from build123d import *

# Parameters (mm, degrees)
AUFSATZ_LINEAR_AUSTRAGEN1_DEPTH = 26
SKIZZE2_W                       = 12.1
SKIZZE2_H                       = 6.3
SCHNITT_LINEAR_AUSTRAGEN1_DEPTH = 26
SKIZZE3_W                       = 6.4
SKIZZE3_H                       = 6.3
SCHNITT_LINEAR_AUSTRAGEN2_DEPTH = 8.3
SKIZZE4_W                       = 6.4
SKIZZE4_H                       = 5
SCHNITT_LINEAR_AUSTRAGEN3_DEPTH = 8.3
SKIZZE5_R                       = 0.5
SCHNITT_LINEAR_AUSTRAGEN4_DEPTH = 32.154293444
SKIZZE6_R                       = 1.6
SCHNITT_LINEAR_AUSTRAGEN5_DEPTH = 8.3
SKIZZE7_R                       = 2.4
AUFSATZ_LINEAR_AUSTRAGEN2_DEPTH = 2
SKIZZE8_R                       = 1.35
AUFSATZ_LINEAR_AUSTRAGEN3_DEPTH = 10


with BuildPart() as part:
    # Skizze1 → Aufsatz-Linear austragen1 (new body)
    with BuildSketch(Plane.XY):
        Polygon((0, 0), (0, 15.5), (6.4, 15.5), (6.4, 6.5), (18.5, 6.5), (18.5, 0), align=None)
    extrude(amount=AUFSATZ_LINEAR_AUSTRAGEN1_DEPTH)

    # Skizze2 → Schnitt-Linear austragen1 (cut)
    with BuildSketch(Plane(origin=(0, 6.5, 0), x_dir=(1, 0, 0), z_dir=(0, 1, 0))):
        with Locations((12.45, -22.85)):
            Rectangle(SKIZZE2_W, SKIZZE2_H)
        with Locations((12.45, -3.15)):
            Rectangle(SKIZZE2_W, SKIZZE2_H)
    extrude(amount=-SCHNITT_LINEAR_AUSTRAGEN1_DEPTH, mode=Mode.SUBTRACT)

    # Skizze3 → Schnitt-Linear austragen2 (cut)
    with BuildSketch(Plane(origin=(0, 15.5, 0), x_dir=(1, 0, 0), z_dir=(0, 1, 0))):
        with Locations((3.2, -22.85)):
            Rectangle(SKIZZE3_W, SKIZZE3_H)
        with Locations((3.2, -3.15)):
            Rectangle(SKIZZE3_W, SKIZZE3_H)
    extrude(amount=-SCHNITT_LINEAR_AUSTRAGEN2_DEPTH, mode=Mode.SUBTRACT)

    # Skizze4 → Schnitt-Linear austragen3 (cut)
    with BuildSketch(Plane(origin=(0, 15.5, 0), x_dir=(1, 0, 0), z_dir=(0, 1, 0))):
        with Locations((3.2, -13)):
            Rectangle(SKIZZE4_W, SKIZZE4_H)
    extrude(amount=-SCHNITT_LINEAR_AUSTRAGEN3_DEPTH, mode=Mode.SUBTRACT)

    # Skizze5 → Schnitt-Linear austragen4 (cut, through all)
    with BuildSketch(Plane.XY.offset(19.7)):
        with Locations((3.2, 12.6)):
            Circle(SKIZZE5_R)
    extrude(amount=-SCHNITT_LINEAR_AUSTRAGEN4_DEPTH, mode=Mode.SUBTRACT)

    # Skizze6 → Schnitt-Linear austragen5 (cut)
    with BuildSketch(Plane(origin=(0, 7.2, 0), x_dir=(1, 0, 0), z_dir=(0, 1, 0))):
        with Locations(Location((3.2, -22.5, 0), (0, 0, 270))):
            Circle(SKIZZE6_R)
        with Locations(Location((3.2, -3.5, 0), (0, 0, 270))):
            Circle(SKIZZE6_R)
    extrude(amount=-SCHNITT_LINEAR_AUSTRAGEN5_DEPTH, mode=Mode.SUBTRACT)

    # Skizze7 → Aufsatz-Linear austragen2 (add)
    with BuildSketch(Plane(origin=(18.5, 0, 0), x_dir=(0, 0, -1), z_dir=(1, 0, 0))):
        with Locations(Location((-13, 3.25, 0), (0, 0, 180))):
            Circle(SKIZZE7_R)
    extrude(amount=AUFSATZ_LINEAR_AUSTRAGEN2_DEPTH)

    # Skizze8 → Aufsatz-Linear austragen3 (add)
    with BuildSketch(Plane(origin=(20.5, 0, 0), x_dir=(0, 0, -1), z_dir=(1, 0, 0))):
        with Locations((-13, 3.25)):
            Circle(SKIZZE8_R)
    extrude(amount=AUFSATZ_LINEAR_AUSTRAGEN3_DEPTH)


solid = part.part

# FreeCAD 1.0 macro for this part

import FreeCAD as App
import Part
import Sketcher
Q = App.Units.Quantity


def add_polygon(sketch, points):
    """Adds a closed chain of lines whose ends are joined by coincident constraints."""
    first, n = sketch.GeometryCount, len(points)
    for a, b in zip(points, points[1:] + points[:1]):
        sketch.addGeometry(Part.LineSegment(App.Vector(*a, 0), App.Vector(*b, 0)), False)
    for i in range(n):
        sketch.addConstraint(Sketcher.Constraint("Coincident", first + i, 2, first + (i + 1) % n, 1))

doc = App.newDocument("Part")
params = doc.addObject("Spreadsheet::Sheet", "Params")
for row, (alias, value) in enumerate([
    ("sketch1_height", "9 mm"),
    ("sketch1_width", "18.5 mm"),
    ("sketch1_width2", "12.1 mm"),
    ("sketch1_height2", "15.5 mm"),
    ("pad1_length", "26 mm"),
    ("sketch2_width", "12.1 mm"),
    ("sketch2_height", "6.3 mm"),
    ("pocket1_length", "26 mm"),
    ("sketch3_width", "6.4 mm"),
    ("sketch3_height", "6.3 mm"),
    ("pocket2_length", "8.3 mm"),
    ("sketch4_height", "5 mm"),
    ("sketch4_width", "6.4 mm"),
    ("pocket3_length", "8.3 mm"),
    ("sketch5_diameter", "1 mm"),
    ("sketch6_diameter", "3.2 mm"),
    ("pocket5_length", "8.3 mm"),
    ("sketch7_diameter", "4.8 mm"),
    ("pad2_length", "2 mm"),
    ("sketch8_diameter", "2.7 mm"),
    ("pad3_length", "10 mm"),
], start=1):
    params.set(f"A{row}", alias)
    params.set(f"B{row}", "=" + value)
    params.setAlias(f"B{row}", alias)

body = doc.addObject("PartDesign::Body", "Body")

sketch1 = body.newObject("Sketcher::SketchObject", "Sketch")
sketch1.AttachmentSupport = (doc.getObject("XY_Plane"), [""])
sketch1.MapMode = "FlatFace"
add_polygon(sketch1, [(0, 16), (0, 0), (18, 0), (18, 6), (6, 6), (6, 16)])
sketch1.addConstraint(Sketcher.Constraint("Vertical", 0))
sketch1.addConstraint(Sketcher.Constraint("Horizontal", 1))
sketch1.addConstraint(Sketcher.Constraint("Vertical", 2))
sketch1.addConstraint(Sketcher.Constraint("Horizontal", 3))
sketch1.addConstraint(Sketcher.Constraint("Vertical", 4))
sketch1.addConstraint(Sketcher.Constraint("Horizontal", 5))
sketch1.addConstraint(Sketcher.Constraint("Coincident", 0, 2, -1, 1))
sketch1.addConstraint(Sketcher.Constraint("DistanceY", 4, 1, 4, 2, Q("9 mm")))
sketch1.addConstraint(Sketcher.Constraint("DistanceX", 1, 1, 1, 2, Q("18.5 mm")))
sketch1.addConstraint(Sketcher.Constraint("DistanceX", 3, 2, 3, 1, Q("12.1 mm")))
sketch1.addConstraint(Sketcher.Constraint("DistanceY", 0, 2, 0, 1, Q("15.5 mm")))
sketch1.setExpression("Constraints[13]", "Params.sketch1_height")
sketch1.setExpression("Constraints[14]", "Params.sketch1_width")
sketch1.setExpression("Constraints[15]", "Params.sketch1_width2")
sketch1.setExpression("Constraints[16]", "Params.sketch1_height2")
pad1 = body.newObject("PartDesign::Pad", "Pad")
pad1.Profile = sketch1
pad1.setExpression("Length", "Params.pad1_length")

sketch2 = body.newObject("Sketcher::SketchObject", "Sketch001")
sketch2.AttachmentSupport = (doc.getObject("XZ_Plane"), [""])
sketch2.MapMode = "FlatFace"
sketch2.AttachmentOffset = App.Placement(App.Vector(0, 0, -6.5), App.Rotation())
add_polygon(sketch2, [(6, 20), (6, 26), (18, 26), (18, 20)])
add_polygon(sketch2, [(6, 0), (6, 6), (18, 6), (18, 0)])
sketch2.addConstraint(Sketcher.Constraint("Vertical", 0))
sketch2.addConstraint(Sketcher.Constraint("Horizontal", 1))
sketch2.addConstraint(Sketcher.Constraint("Vertical", 2))
sketch2.addConstraint(Sketcher.Constraint("Horizontal", 3))
sketch2.addConstraint(Sketcher.Constraint("Vertical", 4))
sketch2.addConstraint(Sketcher.Constraint("Horizontal", 5))
sketch2.addConstraint(Sketcher.Constraint("Vertical", 6))
sketch2.addConstraint(Sketcher.Constraint("Horizontal", 7))
sketch2.addConstraint(Sketcher.Constraint("PointOnObject", 6, 2, -1))
sketch2.addConstraint(Sketcher.Constraint("Vertical", 3, 2, 4, 2))
sketch2.addConstraint(Sketcher.Constraint("Vertical", 2, 2, 5, 2))
sketch2.addConstraint(Sketcher.Constraint("Equal", 2, 4))
sketch2.addConstraint(Sketcher.Constraint("DistanceX", 1, 1, 1, 2, Q("12.1 mm")))
sketch2.addConstraint(Sketcher.Constraint("DistanceY", 0, 1, 0, 2, Q("6.3 mm")))
sketch2.addConstraint(Sketcher.Constraint("DistanceY", -1, 1, 0, 2, Q("26 mm")))
sketch2.addConstraint(Sketcher.Constraint("DistanceX", -1, 1, 0, 2, Q("6.4 mm")))
sketch2.setExpression("Constraints[20]", "Params.sketch2_width")
sketch2.setExpression("Constraints[21]", "Params.sketch2_height")
pocket1 = body.newObject("PartDesign::Pocket", "Pocket")
pocket1.Profile = sketch2
pocket1.setExpression("Length", "Params.pocket1_length")
pocket1.Reversed = True

sketch3 = body.newObject("Sketcher::SketchObject", "Sketch002")
sketch3.AttachmentSupport = (doc.getObject("XZ_Plane"), [""])
sketch3.MapMode = "FlatFace"
sketch3.AttachmentOffset = App.Placement(App.Vector(0, 0, -15.5), App.Rotation())
add_polygon(sketch3, [(0, 20), (0, 26), (6, 26), (6, 20)])
add_polygon(sketch3, [(0, 0), (0, 6), (6, 6), (6, 0)])
sketch3.addConstraint(Sketcher.Constraint("Vertical", 0))
sketch3.addConstraint(Sketcher.Constraint("Horizontal", 1))
sketch3.addConstraint(Sketcher.Constraint("Vertical", 2))
sketch3.addConstraint(Sketcher.Constraint("Horizontal", 3))
sketch3.addConstraint(Sketcher.Constraint("Vertical", 4))
sketch3.addConstraint(Sketcher.Constraint("Horizontal", 5))
sketch3.addConstraint(Sketcher.Constraint("Vertical", 6))
sketch3.addConstraint(Sketcher.Constraint("Horizontal", 7))
sketch3.addConstraint(Sketcher.Constraint("Coincident", 7, 2, -1, 1))
sketch3.addConstraint(Sketcher.Constraint("PointOnObject", 0, 2, -2))
sketch3.addConstraint(Sketcher.Constraint("Vertical", 2, 2, 5, 2))
sketch3.addConstraint(Sketcher.Constraint("Equal", 2, 4))
sketch3.addConstraint(Sketcher.Constraint("DistanceX", 1, 1, 1, 2, Q("6.4 mm")))
sketch3.addConstraint(Sketcher.Constraint("DistanceY", 0, 1, 0, 2, Q("6.3 mm")))
sketch3.addConstraint(Sketcher.Constraint("DistanceY", -1, 1, 0, 2, Q("26 mm")))
sketch3.setExpression("Constraints[20]", "Params.sketch3_width")
sketch3.setExpression("Constraints[21]", "Params.sketch3_height")
pocket2 = body.newObject("PartDesign::Pocket", "Pocket001")
pocket2.Profile = sketch3
pocket2.setExpression("Length", "Params.pocket2_length")
pocket2.Reversed = True

sketch4 = body.newObject("Sketcher::SketchObject", "Sketch003")
sketch4.AttachmentSupport = (doc.getObject("XZ_Plane"), [""])
sketch4.MapMode = "FlatFace"
sketch4.AttachmentOffset = App.Placement(App.Vector(0, 0, -15.5), App.Rotation())
add_polygon(sketch4, [(0, 10), (0, 16), (6, 16), (6, 10)])
sketch4.addConstraint(Sketcher.Constraint("Vertical", 0))
sketch4.addConstraint(Sketcher.Constraint("Horizontal", 1))
sketch4.addConstraint(Sketcher.Constraint("Vertical", 2))
sketch4.addConstraint(Sketcher.Constraint("Horizontal", 3))
sketch4.addConstraint(Sketcher.Constraint("PointOnObject", 0, 2, -2))
sketch4.addConstraint(Sketcher.Constraint("DistanceY", 0, 1, 0, 2, Q("5 mm")))
sketch4.addConstraint(Sketcher.Constraint("DistanceX", 1, 1, 1, 2, Q("6.4 mm")))
sketch4.addConstraint(Sketcher.Constraint("DistanceY", -1, 1, 0, 2, Q("15.5 mm")))
sketch4.setExpression("Constraints[9]", "Params.sketch4_height")
sketch4.setExpression("Constraints[10]", "Params.sketch4_width")
pocket3 = body.newObject("PartDesign::Pocket", "Pocket002")
pocket3.Profile = sketch4
pocket3.setExpression("Length", "Params.pocket3_length")
pocket3.Reversed = True

sketch5 = body.newObject("Sketcher::SketchObject", "Sketch004")
sketch5.AttachmentSupport = (doc.getObject("XY_Plane"), [""])
sketch5.MapMode = "FlatFace"
sketch5.AttachmentOffset = App.Placement(App.Vector(0, 0, 19.7), App.Rotation())
sketch5.addGeometry(Part.Circle(App.Vector(3.2, 12.6, 0), App.Vector(0, 0, 1), 0.5), False)
sketch5.addConstraint(Sketcher.Constraint("Diameter", 0, Q("1 mm")))
sketch5.addConstraint(Sketcher.Constraint("DistanceX", -1, 1, 0, 3, Q("3.2 mm")))
sketch5.addConstraint(Sketcher.Constraint("DistanceY", -1, 1, 0, 3, Q("12.6 mm")))
sketch5.setExpression("Constraints[0]", "Params.sketch5_diameter")
pocket4 = body.newObject("PartDesign::Pocket", "Pocket003")
pocket4.Profile = sketch5
pocket4.Type = "ThroughAll"

sketch6 = body.newObject("Sketcher::SketchObject", "Sketch005")
sketch6.AttachmentSupport = (doc.getObject("XZ_Plane"), [""])
sketch6.MapMode = "FlatFace"
sketch6.AttachmentOffset = App.Placement(App.Vector(0, 0, -7.2), App.Rotation())
sketch6.addGeometry(Part.Circle(App.Vector(3.2, 22.5, 0), App.Vector(0, 0, 1), 1.6), False)
sketch6.addGeometry(Part.Circle(App.Vector(3.2, 3.5, 0), App.Vector(0, 0, 1), 1.6), False)
sketch6.addConstraint(Sketcher.Constraint("Equal", 0, 1))
sketch6.addConstraint(Sketcher.Constraint("Vertical", 0, 3, 1, 3))
sketch6.addConstraint(Sketcher.Constraint("Diameter", 0, Q("3.2 mm")))
sketch6.addConstraint(Sketcher.Constraint("DistanceY", 1, 3, 0, 3, Q("19 mm")))
sketch6.addConstraint(Sketcher.Constraint("DistanceX", -1, 1, 0, 3, Q("3.2 mm")))
sketch6.addConstraint(Sketcher.Constraint("DistanceY", -1, 1, 0, 3, Q("22.5 mm")))
sketch6.setExpression("Constraints[2]", "Params.sketch6_diameter")
pocket5 = body.newObject("PartDesign::Pocket", "Pocket004")
pocket5.Profile = sketch6
pocket5.setExpression("Length", "Params.pocket5_length")
pocket5.Reversed = True

sketch7 = body.newObject("Sketcher::SketchObject", "Sketch006")
sketch7.AttachmentSupport = (doc.getObject("YZ_Plane"), [""])
sketch7.MapMode = "FlatFace"
sketch7.AttachmentOffset = App.Placement(App.Vector(0, 0, 18.5), App.Rotation())
sketch7.addGeometry(Part.Circle(App.Vector(3.2, 13, 0), App.Vector(0, 0, 1), 2.4), False)
sketch7.addConstraint(Sketcher.Constraint("Diameter", 0, Q("4.8 mm")))
sketch7.addConstraint(Sketcher.Constraint("DistanceY", -1, 1, 0, 3, Q("13 mm")))
sketch7.addConstraint(Sketcher.Constraint("DistanceX", -1, 1, 0, 3, Q("3.25 mm")))
sketch7.setExpression("Constraints[0]", "Params.sketch7_diameter")
pad2 = body.newObject("PartDesign::Pad", "Pad001")
pad2.Profile = sketch7
pad2.setExpression("Length", "Params.pad2_length")

sketch8 = body.newObject("Sketcher::SketchObject", "Sketch007")
sketch8.AttachmentSupport = (doc.getObject("YZ_Plane"), [""])
sketch8.MapMode = "FlatFace"
sketch8.AttachmentOffset = App.Placement(App.Vector(0, 0, 20.5), App.Rotation())
sketch8.addGeometry(Part.Circle(App.Vector(3.2, 13, 0), App.Vector(0, 0, 1), 1.4), False)
sketch8.addConstraint(Sketcher.Constraint("Diameter", 0, Q("2.7 mm")))
sketch8.addConstraint(Sketcher.Constraint("DistanceY", -1, 1, 0, 3, Q("13 mm")))
sketch8.addConstraint(Sketcher.Constraint("DistanceX", -1, 1, 0, 3, Q("3.25 mm")))
sketch8.setExpression("Constraints[0]", "Params.sketch8_diameter")
pad3 = body.newObject("PartDesign::Pad", "Pad002")
pad3.Profile = sketch8
pad3.setExpression("Length", "Params.pad3_length")

doc.recompute()
